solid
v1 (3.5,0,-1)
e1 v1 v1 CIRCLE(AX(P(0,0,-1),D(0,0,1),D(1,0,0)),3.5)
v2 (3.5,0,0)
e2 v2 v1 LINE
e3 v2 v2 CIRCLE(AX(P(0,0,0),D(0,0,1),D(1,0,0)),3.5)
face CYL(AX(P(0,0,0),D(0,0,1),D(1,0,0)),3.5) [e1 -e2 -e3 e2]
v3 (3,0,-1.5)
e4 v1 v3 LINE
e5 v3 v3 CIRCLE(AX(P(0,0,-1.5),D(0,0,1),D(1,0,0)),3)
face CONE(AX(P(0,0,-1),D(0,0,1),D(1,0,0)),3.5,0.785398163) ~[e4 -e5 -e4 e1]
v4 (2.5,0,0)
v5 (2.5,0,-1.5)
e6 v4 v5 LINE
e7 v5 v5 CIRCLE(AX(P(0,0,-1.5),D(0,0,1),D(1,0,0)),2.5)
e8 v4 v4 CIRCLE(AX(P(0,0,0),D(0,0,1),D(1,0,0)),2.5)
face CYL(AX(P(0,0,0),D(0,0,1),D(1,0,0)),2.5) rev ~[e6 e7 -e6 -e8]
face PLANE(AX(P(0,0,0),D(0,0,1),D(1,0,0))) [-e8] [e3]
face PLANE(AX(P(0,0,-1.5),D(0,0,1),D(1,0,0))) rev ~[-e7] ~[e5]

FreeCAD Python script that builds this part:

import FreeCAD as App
import Part
import Sketcher
from FreeCAD import Vector


def edges_at(feature, points):
    """Names of the edges that pass closest to the given points."""
    edges = feature.Shape.Edges
    near = lambda p: min(range(len(edges)), key=lambda i: edges[i].distToShape(Part.Vertex(*p))[0])
    return sorted({f"Edge{near(p) + 1}" for p in points})

doc = App.newDocument("Part")
body = doc.addObject("PartDesign::Body", "Body")

# Sketch on XY plane
sketch1 = body.newObject("Sketcher::SketchObject", "Sketch")
sketch1.AttachmentSupport = (doc.getObject("XY_Plane"), [""])
sketch1.MapMode = "FlatFace"
sketch1.addGeometry([
    Part.Circle(Vector(0, 0, 0), Vector(0, 0, 1), 3.5),
    Part.Circle(Vector(0, 0, 0), Vector(0, 0, 1), 2.5),
], False)
sketch1.addConstraint([
    Sketcher.Constraint("Coincident", 0, 3, -1, 1),
    Sketcher.Constraint("Coincident", 1, 3, -1, 1),
    Sketcher.Constraint("Diameter", 0, 7.0),
    Sketcher.Constraint("Diameter", 1, 5.0),
])
pad1 = body.newObject("PartDesign::Pad", "Pad")
pad1.Profile = sketch1
pad1.Length = 1.5
pad1.Reversed = True
doc.recompute()

chamfer = body.newObject("PartDesign::Chamfer", "Chamfer")
chamfer.Base = (pad1, edges_at(pad1, [(-3.5, 0, -1.5)]))
chamfer.Size = 0.5

doc.recompute()
